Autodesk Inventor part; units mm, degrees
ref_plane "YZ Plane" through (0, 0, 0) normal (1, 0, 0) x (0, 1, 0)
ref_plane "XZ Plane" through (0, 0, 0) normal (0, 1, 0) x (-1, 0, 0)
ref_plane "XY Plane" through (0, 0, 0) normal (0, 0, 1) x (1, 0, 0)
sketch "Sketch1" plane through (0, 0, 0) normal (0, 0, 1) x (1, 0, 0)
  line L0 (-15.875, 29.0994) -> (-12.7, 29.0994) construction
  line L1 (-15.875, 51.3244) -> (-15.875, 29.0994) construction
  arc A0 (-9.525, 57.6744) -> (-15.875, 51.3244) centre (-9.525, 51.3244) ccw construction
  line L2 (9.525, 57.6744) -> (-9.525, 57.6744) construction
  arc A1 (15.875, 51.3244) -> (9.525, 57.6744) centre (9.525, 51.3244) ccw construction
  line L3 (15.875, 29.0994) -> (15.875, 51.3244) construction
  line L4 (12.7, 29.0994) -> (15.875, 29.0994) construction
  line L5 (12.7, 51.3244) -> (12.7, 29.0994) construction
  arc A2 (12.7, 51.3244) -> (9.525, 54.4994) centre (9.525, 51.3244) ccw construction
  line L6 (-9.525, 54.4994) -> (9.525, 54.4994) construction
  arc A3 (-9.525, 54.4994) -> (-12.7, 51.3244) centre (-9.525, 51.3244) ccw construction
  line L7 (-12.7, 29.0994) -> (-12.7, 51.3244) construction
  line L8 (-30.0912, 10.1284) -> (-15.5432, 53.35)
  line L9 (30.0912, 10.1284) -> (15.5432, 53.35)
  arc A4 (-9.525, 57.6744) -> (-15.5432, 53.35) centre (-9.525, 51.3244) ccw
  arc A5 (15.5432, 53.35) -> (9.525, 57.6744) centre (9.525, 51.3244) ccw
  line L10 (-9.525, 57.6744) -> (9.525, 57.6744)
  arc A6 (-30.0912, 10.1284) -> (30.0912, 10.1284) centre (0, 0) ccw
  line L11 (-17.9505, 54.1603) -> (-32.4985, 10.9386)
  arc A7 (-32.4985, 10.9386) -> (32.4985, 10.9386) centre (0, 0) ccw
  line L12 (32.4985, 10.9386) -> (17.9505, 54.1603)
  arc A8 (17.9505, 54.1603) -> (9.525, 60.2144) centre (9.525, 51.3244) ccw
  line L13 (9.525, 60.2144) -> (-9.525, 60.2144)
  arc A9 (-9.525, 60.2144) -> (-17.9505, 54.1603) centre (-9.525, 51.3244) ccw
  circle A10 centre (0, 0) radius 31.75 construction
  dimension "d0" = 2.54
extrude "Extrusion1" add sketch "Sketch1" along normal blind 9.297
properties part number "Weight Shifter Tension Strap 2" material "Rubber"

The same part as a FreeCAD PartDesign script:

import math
import FreeCAD as App
import Part
import Sketcher
Q = App.Units.Quantity

doc = App.newDocument("Part")
body = doc.addObject("PartDesign::Body", "Body")

# Sketch on XY plane
sketch1 = body.newObject("Sketcher::SketchObject", "Sketch")
sketch1.AttachmentSupport = (doc.getObject("XY_Plane"), [""])
sketch1.MapMode = "FlatFace"
sketch1.addGeometry([
    Part.ArcOfCircle(Part.Circle(App.Vector(-10, 51, 0), App.Vector(0, 0, 1), 9), math.radians(90), math.radians(161)),  # 0
    Part.LineSegment(App.Vector(-18, 54, 0), App.Vector(-32, 11, 0)),  # 1
    Part.ArcOfCircle(Part.Circle(App.Vector(0, 0, 0), App.Vector(0, 0, 1), 34), math.radians(161), math.radians(379)),  # 2
    Part.LineSegment(App.Vector(32, 11, 0), App.Vector(18, 54, 0)),  # 3
    Part.ArcOfCircle(Part.Circle(App.Vector(10, 51, 0), App.Vector(0, 0, 1), 9), math.radians(19), math.radians(90)),  # 4
    Part.LineSegment(App.Vector(10, 60, 0), App.Vector(-10, 60, 0)),  # 5
    Part.ArcOfCircle(Part.Circle(App.Vector(0, 0, 0), App.Vector(0, 0, 1), 32), math.radians(161), math.radians(379)),  # 6
    Part.LineSegment(App.Vector(-30, 10, 0), App.Vector(-16, 53, 0)),  # 7
    Part.ArcOfCircle(Part.Circle(App.Vector(-10, 51, 0), App.Vector(0, 0, 1), 6), math.radians(90), math.radians(161)),  # 8
    Part.LineSegment(App.Vector(-10, 58, 0), App.Vector(10, 58, 0)),  # 9
    Part.ArcOfCircle(Part.Circle(App.Vector(10, 51, 0), App.Vector(0, 0, 1), 6), math.radians(19), math.radians(90)),  # 10
    Part.LineSegment(App.Vector(16, 53, 0), App.Vector(30, 10, 0)),  # 11
], False)
sketch1.addConstraint([
    Sketcher.Constraint("Tangent", 0, 2, 1, 1),
    Sketcher.Constraint("Tangent", 1, 2, 2, 1),
    Sketcher.Constraint("Tangent", 2, 2, 3, 1),
    Sketcher.Constraint("Tangent", 3, 2, 4, 1),
    Sketcher.Constraint("Tangent", 4, 2, 5, 1),
    Sketcher.Constraint("Tangent", 5, 2, 0, 1),
    Sketcher.Constraint("Tangent", 6, 1, 7, 1),
    Sketcher.Constraint("Tangent", 7, 2, 8, 2),
    Sketcher.Constraint("Tangent", 8, 1, 9, 1),
    Sketcher.Constraint("Tangent", 9, 2, 10, 2),
    Sketcher.Constraint("Tangent", 10, 1, 11, 1),
    Sketcher.Constraint("Tangent", 11, 2, 6, 2),
    Sketcher.Constraint("Horizontal", 5),
    Sketcher.Constraint("Horizontal", 9),
    Sketcher.Constraint("Coincident", 2, 3, -1, 1),
    Sketcher.Constraint("Coincident", 6, 3, -1, 1),
    Sketcher.Constraint("Coincident", 8, 3, 0, 3),
    Sketcher.Constraint("Coincident", 10, 3, 4, 3),
    Sketcher.Constraint("Equal", 0, 4),
    Sketcher.Constraint("Parallel", 1, 7),
    Sketcher.Constraint("Horizontal", 1, 2, 2, 2),
    Sketcher.Constraint("DistanceY", 8, 1, 5, 2, Q("0.1 in")),
    Sketcher.Constraint("Radius", 0, Q("0.35 in")),
    Sketcher.Constraint("Radius", 2, Q("1.35 in")),
    Sketcher.Constraint("DistanceX", 5, 2, 5, 1, Q("0.75 in")),
    Sketcher.Constraint("DistanceY", 1, 2, 0, 3, Q("1.59 in")),
])
pad1 = body.newObject("PartDesign::Pad", "Pad")
pad1.Profile = sketch1
pad1.Length = 9.297

doc.recompute()
